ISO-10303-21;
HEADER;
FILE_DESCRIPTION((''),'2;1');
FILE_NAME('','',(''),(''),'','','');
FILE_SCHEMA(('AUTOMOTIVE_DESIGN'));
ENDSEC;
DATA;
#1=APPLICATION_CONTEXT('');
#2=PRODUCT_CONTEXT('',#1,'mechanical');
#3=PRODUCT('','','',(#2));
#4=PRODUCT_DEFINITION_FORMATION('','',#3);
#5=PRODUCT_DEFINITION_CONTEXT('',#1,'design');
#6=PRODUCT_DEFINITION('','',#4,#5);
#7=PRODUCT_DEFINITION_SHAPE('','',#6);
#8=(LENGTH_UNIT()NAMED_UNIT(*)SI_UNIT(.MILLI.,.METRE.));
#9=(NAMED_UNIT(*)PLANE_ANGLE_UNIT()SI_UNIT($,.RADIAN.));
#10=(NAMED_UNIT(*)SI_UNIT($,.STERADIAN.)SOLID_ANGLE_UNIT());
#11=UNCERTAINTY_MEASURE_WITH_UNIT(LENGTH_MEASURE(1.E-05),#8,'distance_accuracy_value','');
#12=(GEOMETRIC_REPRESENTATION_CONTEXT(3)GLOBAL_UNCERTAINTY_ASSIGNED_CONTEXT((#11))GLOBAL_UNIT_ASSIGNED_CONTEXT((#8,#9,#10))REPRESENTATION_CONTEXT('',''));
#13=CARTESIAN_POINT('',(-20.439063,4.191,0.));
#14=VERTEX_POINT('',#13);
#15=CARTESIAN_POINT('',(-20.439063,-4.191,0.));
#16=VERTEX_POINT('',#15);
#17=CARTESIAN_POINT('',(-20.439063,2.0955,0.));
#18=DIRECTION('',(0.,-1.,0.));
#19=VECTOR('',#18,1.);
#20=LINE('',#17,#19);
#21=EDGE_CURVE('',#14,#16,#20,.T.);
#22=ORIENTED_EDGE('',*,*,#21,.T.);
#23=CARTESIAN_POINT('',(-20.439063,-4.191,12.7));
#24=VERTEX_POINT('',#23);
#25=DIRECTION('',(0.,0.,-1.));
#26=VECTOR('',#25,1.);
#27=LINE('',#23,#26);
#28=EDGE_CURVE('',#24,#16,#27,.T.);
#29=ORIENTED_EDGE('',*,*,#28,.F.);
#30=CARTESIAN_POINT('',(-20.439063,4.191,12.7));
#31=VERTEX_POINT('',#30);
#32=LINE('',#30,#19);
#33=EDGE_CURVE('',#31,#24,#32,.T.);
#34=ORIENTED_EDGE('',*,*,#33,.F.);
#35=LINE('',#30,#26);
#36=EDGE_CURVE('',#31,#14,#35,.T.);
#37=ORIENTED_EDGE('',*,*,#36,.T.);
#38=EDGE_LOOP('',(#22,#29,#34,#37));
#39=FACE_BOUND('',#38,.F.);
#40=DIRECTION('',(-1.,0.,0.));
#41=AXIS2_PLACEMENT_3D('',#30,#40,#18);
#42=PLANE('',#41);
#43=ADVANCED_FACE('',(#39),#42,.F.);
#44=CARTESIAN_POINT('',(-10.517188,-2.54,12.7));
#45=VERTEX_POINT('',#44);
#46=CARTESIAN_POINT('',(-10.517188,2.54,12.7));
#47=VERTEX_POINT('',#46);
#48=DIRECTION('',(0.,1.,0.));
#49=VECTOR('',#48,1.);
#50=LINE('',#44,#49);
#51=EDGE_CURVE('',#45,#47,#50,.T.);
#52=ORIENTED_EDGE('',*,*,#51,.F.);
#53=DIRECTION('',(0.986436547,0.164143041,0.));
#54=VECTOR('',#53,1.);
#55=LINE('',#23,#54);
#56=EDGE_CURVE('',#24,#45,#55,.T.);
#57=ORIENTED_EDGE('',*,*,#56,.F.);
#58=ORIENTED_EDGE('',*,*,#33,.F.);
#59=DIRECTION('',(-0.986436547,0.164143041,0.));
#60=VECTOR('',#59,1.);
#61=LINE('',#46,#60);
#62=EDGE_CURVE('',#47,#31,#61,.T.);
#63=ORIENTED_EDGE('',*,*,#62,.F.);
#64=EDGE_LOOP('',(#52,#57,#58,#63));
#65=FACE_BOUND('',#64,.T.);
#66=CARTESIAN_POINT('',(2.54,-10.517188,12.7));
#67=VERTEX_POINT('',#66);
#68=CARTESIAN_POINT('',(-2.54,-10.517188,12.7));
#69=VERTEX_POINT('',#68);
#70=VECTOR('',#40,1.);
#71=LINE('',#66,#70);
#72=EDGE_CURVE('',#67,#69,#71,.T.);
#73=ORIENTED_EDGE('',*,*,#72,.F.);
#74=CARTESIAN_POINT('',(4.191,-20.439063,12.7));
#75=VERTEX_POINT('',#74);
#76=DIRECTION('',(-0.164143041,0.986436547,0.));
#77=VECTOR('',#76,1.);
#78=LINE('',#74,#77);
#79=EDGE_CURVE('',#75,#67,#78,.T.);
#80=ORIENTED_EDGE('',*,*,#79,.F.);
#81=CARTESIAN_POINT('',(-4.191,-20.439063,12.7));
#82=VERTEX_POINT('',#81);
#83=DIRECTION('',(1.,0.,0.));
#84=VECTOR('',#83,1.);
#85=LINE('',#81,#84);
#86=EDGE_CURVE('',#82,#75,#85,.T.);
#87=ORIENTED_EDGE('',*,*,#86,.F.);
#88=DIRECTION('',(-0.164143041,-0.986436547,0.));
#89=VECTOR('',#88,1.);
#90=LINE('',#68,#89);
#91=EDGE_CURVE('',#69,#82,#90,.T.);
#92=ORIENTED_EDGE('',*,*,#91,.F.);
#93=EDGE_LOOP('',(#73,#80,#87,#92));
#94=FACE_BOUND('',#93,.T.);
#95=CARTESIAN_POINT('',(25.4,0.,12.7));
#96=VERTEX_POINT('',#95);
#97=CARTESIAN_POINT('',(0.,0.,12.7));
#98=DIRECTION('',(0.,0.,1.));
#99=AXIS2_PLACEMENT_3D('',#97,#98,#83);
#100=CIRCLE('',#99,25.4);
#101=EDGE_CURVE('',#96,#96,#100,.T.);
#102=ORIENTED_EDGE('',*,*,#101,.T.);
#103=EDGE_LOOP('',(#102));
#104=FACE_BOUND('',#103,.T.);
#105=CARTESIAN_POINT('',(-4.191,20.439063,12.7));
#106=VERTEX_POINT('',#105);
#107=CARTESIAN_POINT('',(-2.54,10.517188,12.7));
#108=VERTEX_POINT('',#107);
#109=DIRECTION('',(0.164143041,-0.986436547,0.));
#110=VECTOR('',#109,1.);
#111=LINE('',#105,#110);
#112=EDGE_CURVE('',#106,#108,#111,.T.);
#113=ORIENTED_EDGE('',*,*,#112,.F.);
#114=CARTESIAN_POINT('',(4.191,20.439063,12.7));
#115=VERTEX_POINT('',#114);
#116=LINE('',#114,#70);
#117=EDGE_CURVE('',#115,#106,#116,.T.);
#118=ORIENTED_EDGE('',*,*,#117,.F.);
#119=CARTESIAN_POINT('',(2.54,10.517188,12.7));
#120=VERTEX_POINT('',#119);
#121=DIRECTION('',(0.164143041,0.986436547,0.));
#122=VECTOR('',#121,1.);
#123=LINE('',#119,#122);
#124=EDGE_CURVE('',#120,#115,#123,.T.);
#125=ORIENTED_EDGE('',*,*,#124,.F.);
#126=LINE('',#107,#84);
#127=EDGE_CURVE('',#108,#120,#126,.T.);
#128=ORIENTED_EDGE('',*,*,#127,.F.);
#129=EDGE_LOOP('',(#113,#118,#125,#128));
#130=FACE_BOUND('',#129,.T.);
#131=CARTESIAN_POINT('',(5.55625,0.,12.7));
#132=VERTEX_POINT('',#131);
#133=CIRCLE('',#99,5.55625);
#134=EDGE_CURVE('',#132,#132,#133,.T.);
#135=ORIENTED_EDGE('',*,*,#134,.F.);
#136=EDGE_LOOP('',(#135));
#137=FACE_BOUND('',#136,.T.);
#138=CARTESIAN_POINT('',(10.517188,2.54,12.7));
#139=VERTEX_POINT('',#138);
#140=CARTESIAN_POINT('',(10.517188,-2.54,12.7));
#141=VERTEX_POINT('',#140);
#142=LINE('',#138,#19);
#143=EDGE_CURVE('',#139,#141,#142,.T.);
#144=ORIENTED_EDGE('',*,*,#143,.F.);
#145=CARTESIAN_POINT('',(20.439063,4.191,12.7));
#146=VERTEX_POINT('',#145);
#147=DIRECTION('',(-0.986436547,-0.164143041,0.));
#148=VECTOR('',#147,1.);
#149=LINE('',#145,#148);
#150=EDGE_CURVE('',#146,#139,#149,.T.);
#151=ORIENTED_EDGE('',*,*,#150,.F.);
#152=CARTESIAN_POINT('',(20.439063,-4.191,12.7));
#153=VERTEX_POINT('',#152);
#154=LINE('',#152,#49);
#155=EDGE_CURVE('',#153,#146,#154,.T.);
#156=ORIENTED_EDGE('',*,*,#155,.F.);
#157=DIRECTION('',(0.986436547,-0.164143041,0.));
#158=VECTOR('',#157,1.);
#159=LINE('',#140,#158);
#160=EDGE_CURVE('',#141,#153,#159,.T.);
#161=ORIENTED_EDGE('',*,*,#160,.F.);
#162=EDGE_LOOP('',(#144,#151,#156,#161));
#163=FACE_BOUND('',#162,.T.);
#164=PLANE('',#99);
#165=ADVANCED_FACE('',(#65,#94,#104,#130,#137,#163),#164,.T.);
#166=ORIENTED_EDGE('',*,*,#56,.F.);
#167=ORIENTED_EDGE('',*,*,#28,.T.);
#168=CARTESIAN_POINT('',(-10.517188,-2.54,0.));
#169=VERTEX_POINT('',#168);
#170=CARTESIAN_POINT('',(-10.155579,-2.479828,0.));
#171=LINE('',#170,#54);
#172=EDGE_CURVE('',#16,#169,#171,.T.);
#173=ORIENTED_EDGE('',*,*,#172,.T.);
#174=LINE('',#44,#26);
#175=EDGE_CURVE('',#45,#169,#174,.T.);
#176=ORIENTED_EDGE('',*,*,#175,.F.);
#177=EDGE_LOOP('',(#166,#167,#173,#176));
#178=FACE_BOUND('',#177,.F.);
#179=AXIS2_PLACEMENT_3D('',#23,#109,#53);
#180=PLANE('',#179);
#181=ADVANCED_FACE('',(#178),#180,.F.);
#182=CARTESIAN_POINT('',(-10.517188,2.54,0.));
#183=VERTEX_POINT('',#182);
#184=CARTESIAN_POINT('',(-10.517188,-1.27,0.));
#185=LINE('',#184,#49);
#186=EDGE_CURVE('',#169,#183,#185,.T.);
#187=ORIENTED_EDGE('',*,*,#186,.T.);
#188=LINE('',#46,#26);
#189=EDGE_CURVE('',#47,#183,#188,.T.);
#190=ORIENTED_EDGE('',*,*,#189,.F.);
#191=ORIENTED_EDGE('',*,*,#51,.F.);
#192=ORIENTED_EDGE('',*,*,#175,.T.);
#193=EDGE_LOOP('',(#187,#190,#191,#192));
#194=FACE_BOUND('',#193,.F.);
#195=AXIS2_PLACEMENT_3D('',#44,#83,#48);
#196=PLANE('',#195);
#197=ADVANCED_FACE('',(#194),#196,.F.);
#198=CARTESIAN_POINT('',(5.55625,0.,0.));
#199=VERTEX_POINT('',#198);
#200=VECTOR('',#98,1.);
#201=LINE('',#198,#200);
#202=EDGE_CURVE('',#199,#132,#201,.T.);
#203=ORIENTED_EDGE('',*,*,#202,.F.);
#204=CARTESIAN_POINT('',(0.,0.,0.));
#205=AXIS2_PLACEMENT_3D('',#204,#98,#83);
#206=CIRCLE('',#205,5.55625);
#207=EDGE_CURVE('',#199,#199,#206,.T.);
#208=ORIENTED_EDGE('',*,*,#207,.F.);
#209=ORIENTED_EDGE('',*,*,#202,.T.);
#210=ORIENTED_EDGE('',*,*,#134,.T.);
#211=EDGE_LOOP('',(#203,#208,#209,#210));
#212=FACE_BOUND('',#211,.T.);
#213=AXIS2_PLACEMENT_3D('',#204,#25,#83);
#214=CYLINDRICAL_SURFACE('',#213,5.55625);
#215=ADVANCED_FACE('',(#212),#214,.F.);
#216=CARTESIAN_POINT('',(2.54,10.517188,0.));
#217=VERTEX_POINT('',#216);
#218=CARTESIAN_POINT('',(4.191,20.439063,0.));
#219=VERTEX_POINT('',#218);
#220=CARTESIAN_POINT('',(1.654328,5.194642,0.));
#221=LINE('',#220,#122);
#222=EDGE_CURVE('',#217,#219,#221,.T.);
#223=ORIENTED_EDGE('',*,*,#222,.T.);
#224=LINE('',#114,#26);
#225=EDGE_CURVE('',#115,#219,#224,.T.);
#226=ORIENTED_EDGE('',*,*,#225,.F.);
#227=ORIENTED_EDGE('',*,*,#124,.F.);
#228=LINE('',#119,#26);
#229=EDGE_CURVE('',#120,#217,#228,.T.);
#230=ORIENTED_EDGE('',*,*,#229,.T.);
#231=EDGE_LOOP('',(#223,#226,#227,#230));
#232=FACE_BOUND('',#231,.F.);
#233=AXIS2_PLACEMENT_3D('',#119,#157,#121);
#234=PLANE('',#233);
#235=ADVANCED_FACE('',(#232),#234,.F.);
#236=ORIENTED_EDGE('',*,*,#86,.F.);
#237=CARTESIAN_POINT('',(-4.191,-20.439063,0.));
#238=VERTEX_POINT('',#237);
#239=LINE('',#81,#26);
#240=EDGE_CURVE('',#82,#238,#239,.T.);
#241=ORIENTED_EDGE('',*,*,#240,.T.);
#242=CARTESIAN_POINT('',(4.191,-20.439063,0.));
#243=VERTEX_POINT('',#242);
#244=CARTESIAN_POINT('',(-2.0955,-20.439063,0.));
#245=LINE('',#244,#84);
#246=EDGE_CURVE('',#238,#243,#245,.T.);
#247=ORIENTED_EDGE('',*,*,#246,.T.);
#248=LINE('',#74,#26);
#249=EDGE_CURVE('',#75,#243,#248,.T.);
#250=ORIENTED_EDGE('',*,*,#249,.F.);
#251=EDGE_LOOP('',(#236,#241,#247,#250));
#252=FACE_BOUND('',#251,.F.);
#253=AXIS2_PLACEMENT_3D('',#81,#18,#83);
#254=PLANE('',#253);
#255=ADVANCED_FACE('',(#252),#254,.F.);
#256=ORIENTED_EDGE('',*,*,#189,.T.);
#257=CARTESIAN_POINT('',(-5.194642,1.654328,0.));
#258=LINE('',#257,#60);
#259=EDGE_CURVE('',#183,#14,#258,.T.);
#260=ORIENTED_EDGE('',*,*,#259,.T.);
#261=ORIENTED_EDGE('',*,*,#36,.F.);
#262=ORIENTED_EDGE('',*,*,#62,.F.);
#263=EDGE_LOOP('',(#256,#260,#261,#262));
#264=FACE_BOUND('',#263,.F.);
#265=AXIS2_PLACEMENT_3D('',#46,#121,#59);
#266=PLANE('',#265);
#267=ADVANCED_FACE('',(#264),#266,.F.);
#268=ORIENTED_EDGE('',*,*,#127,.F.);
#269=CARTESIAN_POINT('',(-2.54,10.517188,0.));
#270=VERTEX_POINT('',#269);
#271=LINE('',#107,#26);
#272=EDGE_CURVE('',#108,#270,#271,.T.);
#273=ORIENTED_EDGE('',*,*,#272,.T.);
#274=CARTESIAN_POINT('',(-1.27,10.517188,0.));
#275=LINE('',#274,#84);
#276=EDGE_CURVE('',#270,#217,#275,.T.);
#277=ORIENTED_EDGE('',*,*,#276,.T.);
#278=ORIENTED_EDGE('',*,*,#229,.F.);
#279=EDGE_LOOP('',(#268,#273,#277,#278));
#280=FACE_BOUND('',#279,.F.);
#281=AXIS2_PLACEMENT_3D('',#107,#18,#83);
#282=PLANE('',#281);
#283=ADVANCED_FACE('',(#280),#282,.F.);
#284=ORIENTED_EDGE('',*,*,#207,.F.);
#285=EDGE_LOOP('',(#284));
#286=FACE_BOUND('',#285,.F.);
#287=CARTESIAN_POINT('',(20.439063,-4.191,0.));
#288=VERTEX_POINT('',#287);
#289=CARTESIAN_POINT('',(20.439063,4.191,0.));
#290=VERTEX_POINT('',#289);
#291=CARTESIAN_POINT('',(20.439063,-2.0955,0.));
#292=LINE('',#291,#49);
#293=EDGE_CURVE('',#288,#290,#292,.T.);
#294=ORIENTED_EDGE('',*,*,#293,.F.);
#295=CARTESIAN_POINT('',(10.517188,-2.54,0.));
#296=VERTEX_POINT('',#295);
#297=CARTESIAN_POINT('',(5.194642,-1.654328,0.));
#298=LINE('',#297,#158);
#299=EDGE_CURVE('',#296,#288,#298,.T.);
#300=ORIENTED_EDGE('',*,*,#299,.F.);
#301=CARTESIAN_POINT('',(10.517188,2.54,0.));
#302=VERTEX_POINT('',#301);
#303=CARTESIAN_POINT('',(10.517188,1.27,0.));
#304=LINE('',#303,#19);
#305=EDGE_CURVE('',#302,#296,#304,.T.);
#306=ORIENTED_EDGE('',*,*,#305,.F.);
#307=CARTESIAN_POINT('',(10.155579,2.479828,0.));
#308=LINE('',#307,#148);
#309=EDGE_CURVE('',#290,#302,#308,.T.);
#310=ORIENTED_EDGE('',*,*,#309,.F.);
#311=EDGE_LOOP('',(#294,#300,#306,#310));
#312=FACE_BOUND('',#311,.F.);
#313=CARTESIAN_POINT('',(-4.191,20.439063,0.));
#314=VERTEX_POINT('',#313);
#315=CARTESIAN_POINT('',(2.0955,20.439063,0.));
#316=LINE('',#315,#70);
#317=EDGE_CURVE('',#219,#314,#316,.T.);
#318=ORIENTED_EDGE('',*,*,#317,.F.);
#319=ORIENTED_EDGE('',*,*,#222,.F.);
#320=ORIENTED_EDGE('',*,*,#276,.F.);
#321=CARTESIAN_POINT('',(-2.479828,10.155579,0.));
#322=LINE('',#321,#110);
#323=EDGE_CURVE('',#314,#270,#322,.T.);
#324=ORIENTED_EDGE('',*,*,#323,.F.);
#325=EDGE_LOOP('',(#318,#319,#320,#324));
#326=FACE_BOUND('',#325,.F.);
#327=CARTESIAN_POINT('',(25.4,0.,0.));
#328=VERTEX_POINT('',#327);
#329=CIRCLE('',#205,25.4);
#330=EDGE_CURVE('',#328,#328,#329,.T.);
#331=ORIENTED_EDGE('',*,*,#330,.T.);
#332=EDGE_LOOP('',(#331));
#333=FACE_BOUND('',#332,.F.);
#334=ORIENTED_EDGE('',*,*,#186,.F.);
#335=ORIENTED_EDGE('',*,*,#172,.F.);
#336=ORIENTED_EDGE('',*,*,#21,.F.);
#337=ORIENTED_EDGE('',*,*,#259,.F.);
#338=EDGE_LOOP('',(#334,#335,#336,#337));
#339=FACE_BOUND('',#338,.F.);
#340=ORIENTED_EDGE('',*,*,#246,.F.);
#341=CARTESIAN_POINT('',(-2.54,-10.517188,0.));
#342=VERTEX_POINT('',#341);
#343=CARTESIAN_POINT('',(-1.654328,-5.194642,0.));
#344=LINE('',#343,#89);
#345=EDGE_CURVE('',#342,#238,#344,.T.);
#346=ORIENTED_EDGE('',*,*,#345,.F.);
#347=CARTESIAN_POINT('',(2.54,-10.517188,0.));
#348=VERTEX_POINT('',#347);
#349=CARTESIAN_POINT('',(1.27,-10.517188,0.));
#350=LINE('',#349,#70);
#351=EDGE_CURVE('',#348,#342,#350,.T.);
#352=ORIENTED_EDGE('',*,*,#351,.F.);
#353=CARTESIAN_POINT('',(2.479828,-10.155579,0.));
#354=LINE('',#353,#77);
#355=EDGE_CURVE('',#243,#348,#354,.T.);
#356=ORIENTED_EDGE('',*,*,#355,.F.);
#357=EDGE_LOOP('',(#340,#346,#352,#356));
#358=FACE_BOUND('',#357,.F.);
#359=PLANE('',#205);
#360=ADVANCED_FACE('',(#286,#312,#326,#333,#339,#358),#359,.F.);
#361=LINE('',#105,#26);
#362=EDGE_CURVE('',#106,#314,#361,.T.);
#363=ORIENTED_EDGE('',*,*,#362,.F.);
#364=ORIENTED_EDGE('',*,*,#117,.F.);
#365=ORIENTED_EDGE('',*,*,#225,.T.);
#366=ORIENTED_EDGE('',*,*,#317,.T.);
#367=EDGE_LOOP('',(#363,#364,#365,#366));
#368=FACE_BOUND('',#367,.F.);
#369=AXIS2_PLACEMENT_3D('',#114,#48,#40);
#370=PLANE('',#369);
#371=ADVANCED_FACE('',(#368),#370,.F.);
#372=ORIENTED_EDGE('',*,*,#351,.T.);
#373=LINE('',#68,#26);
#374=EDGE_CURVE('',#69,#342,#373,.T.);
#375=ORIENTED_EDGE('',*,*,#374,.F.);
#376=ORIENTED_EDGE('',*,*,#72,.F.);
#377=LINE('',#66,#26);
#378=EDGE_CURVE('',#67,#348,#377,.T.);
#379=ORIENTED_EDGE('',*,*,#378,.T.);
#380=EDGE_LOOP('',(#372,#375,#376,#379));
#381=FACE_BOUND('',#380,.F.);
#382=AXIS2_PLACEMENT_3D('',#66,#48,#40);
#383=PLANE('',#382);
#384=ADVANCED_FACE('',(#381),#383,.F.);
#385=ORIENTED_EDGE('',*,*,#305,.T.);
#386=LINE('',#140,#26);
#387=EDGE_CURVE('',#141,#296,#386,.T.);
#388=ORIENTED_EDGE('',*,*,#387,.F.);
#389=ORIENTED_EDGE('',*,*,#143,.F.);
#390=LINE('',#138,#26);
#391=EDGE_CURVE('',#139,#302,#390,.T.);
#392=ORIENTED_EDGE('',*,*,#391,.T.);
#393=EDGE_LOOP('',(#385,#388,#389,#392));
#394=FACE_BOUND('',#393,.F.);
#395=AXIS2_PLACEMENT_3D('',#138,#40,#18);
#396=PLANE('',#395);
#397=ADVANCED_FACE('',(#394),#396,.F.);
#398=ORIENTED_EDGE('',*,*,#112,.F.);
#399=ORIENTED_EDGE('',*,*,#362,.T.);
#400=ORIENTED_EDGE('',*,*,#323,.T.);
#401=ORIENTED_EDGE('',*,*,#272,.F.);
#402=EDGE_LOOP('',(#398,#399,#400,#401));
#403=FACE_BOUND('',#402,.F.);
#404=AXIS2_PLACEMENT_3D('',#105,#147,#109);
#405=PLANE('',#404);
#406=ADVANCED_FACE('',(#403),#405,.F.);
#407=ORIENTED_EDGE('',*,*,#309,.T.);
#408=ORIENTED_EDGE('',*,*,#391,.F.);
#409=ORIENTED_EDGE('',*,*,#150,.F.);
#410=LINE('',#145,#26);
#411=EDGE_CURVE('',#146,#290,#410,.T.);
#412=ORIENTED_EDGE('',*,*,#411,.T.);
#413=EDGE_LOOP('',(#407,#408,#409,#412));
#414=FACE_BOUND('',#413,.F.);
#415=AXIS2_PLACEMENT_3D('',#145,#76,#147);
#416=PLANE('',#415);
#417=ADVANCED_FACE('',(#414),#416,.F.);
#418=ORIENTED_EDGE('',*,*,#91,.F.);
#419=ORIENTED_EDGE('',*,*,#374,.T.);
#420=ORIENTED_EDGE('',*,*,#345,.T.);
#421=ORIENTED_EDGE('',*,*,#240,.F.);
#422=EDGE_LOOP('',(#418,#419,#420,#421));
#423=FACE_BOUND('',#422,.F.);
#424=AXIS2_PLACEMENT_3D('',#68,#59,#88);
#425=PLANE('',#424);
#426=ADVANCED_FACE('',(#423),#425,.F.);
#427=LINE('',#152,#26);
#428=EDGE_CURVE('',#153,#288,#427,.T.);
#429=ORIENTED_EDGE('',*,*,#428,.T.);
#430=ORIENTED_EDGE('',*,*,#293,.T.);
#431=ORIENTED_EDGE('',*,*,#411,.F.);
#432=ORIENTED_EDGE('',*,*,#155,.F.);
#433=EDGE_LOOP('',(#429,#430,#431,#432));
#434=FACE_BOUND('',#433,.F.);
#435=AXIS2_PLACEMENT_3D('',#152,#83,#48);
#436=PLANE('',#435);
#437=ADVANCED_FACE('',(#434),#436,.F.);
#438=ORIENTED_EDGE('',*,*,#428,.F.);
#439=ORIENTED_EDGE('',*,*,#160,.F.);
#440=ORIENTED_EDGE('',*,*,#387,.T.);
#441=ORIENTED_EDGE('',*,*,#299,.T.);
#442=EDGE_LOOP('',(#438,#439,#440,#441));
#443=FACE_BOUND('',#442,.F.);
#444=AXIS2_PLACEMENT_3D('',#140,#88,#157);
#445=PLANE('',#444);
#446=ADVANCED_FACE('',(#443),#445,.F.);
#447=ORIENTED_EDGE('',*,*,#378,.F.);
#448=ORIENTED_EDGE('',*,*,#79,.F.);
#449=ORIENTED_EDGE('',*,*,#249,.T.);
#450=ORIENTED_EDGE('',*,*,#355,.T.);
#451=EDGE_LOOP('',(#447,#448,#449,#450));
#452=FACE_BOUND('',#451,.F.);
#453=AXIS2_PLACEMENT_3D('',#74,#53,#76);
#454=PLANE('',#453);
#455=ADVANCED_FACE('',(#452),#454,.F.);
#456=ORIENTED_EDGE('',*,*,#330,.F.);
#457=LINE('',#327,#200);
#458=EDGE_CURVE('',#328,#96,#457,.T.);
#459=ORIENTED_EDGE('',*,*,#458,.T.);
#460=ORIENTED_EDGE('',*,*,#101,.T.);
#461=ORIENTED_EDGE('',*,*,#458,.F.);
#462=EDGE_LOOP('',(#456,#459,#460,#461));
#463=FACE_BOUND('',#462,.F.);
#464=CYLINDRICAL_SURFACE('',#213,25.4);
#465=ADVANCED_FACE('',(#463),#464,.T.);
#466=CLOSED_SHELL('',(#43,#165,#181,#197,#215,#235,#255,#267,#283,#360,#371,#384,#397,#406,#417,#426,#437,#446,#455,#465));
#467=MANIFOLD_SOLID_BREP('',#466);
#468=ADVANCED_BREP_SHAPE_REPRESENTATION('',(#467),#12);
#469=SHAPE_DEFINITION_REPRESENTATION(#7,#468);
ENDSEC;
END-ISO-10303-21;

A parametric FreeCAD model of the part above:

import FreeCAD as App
import Part
import Sketcher

V = App.Vector
Q = App.Units.Quantity


def add_polygon(sketch, points):
    """Adds a closed chain of lines whose ends are joined by coincident constraints."""
    first, n = sketch.GeometryCount, len(points)
    for a, b in zip(points, points[1:] + points[:1]):
        sketch.addGeometry(Part.LineSegment(App.Vector(*a, 0), App.Vector(*b, 0)), False)
    for i in range(n):
        sketch.addConstraint(Sketcher.Constraint("Coincident", first + i, 2, first + (i + 1) % n, 1))

doc = App.newDocument("Part")
body = doc.addObject("PartDesign::Body", "Body")

sketch1 = body.newObject("Sketcher::SketchObject", "Sketch")
sketch1.AttachmentSupport = (doc.getObject("XY_Plane"), [""])
sketch1.MapMode = "FlatFace"
sketch1.addGeometry([
    Part.Circle(V(0, 0, 0), V(0, 0, 1), 25),
    Part.Circle(V(0, 0, 0), V(0, 0, 1), 6),
], False)
sketch1.addConstraint([
    Sketcher.Constraint("Coincident", 0, 3, -1, 1),
    Sketcher.Constraint("Coincident", 1, 3, -1, 1),
    Sketcher.Constraint("Diameter", 0, Q("2 in")),
    Sketcher.Constraint("Diameter", 1, Q("0.4375 in")),
])
pad1 = body.newObject("PartDesign::Pad", "Pad")
pad1.Profile = sketch1
pad1.Length = Q("0.5 in")

sketch2 = body.newObject("Sketcher::SketchObject", "Sketch001")
sketch2.AttachmentSupport = (doc.getObject("XY_Plane"), [""])
sketch2.MapMode = "FlatFace"
sketch2.AttachmentOffset = App.Placement(V(0, 0, 0.5 * 25.4), App.Rotation())
add_polygon(sketch2, [(4, 20), (-4, 20), (-3, 11), (3, 11)])
add_polygon(sketch2, [(-11, 3), (-20, 4), (-20, -4), (-11, -3)])
add_polygon(sketch2, [(20, -4), (20, 4), (11, 3), (11, -3)])
add_polygon(sketch2, [(-4, -20), (4, -20), (3, -11), (-3, -11)])
sketch2.addConstraint([
    Sketcher.Constraint("Horizontal", 0),
    Sketcher.Constraint("Horizontal", 2),
    Sketcher.Constraint("Vertical", 5),
    Sketcher.Constraint("Vertical", 7),
    Sketcher.Constraint("Vertical", 8),
    Sketcher.Constraint("Vertical", 10),
    Sketcher.Constraint("Horizontal", 12),
    Sketcher.Constraint("Horizontal", 14),
    Sketcher.Constraint("Symmetric", 5, 2, 8, 2, -1, 1),
    Sketcher.Constraint("Symmetric", 6, 2, 9, 2, -1, 1),
    Sketcher.Constraint("Symmetric", 0, 2, 12, 2, -1, 1),
    Sketcher.Constraint("Symmetric", 1, 2, 13, 2, -1, 1),
    Sketcher.Constraint("Perpendicular", 3, 4),
    Sketcher.Constraint("Perpendicular", 1, 6),
    Sketcher.Constraint("Parallel", 4, 11),
    Sketcher.Constraint("Perpendicular", 11, 15),
    Sketcher.Constraint("Horizontal", 4, 2, 8, 2),
    Sketcher.Constraint("Horizontal", 7, 2, 9, 2),
    Sketcher.Constraint("Horizontal", 6, 2, 10, 2),
    Sketcher.Constraint("Vertical", 3, 2, 12, 2),
    Sketcher.Constraint("Vertical", 1, 2, 14, 2),
    Sketcher.Constraint("Equal", 12, 5),
    Sketcher.Constraint("Equal", 14, 7),
    Sketcher.Constraint("DistanceX", 2, 1, 2, 2, Q("0.2 in")),
    Sketcher.Constraint("DistanceX", 0, 2, 0, 1, Q("0.33 in")),
    Sketcher.Constraint("DistanceY", 1, 2, 0, 2, Q("0.390625 in")),
    Sketcher.Constraint("DistanceX", 7, 2, 8, 2, Q("1.21875 in")),
    Sketcher.Constraint("DistanceY", -1, 1, 1, 2, 10.517188),
])
pocket1 = body.newObject("PartDesign::Pocket", "Pocket")
pocket1.Profile = sketch2
pocket1.Length = Q("1 in")

doc.recompute()
